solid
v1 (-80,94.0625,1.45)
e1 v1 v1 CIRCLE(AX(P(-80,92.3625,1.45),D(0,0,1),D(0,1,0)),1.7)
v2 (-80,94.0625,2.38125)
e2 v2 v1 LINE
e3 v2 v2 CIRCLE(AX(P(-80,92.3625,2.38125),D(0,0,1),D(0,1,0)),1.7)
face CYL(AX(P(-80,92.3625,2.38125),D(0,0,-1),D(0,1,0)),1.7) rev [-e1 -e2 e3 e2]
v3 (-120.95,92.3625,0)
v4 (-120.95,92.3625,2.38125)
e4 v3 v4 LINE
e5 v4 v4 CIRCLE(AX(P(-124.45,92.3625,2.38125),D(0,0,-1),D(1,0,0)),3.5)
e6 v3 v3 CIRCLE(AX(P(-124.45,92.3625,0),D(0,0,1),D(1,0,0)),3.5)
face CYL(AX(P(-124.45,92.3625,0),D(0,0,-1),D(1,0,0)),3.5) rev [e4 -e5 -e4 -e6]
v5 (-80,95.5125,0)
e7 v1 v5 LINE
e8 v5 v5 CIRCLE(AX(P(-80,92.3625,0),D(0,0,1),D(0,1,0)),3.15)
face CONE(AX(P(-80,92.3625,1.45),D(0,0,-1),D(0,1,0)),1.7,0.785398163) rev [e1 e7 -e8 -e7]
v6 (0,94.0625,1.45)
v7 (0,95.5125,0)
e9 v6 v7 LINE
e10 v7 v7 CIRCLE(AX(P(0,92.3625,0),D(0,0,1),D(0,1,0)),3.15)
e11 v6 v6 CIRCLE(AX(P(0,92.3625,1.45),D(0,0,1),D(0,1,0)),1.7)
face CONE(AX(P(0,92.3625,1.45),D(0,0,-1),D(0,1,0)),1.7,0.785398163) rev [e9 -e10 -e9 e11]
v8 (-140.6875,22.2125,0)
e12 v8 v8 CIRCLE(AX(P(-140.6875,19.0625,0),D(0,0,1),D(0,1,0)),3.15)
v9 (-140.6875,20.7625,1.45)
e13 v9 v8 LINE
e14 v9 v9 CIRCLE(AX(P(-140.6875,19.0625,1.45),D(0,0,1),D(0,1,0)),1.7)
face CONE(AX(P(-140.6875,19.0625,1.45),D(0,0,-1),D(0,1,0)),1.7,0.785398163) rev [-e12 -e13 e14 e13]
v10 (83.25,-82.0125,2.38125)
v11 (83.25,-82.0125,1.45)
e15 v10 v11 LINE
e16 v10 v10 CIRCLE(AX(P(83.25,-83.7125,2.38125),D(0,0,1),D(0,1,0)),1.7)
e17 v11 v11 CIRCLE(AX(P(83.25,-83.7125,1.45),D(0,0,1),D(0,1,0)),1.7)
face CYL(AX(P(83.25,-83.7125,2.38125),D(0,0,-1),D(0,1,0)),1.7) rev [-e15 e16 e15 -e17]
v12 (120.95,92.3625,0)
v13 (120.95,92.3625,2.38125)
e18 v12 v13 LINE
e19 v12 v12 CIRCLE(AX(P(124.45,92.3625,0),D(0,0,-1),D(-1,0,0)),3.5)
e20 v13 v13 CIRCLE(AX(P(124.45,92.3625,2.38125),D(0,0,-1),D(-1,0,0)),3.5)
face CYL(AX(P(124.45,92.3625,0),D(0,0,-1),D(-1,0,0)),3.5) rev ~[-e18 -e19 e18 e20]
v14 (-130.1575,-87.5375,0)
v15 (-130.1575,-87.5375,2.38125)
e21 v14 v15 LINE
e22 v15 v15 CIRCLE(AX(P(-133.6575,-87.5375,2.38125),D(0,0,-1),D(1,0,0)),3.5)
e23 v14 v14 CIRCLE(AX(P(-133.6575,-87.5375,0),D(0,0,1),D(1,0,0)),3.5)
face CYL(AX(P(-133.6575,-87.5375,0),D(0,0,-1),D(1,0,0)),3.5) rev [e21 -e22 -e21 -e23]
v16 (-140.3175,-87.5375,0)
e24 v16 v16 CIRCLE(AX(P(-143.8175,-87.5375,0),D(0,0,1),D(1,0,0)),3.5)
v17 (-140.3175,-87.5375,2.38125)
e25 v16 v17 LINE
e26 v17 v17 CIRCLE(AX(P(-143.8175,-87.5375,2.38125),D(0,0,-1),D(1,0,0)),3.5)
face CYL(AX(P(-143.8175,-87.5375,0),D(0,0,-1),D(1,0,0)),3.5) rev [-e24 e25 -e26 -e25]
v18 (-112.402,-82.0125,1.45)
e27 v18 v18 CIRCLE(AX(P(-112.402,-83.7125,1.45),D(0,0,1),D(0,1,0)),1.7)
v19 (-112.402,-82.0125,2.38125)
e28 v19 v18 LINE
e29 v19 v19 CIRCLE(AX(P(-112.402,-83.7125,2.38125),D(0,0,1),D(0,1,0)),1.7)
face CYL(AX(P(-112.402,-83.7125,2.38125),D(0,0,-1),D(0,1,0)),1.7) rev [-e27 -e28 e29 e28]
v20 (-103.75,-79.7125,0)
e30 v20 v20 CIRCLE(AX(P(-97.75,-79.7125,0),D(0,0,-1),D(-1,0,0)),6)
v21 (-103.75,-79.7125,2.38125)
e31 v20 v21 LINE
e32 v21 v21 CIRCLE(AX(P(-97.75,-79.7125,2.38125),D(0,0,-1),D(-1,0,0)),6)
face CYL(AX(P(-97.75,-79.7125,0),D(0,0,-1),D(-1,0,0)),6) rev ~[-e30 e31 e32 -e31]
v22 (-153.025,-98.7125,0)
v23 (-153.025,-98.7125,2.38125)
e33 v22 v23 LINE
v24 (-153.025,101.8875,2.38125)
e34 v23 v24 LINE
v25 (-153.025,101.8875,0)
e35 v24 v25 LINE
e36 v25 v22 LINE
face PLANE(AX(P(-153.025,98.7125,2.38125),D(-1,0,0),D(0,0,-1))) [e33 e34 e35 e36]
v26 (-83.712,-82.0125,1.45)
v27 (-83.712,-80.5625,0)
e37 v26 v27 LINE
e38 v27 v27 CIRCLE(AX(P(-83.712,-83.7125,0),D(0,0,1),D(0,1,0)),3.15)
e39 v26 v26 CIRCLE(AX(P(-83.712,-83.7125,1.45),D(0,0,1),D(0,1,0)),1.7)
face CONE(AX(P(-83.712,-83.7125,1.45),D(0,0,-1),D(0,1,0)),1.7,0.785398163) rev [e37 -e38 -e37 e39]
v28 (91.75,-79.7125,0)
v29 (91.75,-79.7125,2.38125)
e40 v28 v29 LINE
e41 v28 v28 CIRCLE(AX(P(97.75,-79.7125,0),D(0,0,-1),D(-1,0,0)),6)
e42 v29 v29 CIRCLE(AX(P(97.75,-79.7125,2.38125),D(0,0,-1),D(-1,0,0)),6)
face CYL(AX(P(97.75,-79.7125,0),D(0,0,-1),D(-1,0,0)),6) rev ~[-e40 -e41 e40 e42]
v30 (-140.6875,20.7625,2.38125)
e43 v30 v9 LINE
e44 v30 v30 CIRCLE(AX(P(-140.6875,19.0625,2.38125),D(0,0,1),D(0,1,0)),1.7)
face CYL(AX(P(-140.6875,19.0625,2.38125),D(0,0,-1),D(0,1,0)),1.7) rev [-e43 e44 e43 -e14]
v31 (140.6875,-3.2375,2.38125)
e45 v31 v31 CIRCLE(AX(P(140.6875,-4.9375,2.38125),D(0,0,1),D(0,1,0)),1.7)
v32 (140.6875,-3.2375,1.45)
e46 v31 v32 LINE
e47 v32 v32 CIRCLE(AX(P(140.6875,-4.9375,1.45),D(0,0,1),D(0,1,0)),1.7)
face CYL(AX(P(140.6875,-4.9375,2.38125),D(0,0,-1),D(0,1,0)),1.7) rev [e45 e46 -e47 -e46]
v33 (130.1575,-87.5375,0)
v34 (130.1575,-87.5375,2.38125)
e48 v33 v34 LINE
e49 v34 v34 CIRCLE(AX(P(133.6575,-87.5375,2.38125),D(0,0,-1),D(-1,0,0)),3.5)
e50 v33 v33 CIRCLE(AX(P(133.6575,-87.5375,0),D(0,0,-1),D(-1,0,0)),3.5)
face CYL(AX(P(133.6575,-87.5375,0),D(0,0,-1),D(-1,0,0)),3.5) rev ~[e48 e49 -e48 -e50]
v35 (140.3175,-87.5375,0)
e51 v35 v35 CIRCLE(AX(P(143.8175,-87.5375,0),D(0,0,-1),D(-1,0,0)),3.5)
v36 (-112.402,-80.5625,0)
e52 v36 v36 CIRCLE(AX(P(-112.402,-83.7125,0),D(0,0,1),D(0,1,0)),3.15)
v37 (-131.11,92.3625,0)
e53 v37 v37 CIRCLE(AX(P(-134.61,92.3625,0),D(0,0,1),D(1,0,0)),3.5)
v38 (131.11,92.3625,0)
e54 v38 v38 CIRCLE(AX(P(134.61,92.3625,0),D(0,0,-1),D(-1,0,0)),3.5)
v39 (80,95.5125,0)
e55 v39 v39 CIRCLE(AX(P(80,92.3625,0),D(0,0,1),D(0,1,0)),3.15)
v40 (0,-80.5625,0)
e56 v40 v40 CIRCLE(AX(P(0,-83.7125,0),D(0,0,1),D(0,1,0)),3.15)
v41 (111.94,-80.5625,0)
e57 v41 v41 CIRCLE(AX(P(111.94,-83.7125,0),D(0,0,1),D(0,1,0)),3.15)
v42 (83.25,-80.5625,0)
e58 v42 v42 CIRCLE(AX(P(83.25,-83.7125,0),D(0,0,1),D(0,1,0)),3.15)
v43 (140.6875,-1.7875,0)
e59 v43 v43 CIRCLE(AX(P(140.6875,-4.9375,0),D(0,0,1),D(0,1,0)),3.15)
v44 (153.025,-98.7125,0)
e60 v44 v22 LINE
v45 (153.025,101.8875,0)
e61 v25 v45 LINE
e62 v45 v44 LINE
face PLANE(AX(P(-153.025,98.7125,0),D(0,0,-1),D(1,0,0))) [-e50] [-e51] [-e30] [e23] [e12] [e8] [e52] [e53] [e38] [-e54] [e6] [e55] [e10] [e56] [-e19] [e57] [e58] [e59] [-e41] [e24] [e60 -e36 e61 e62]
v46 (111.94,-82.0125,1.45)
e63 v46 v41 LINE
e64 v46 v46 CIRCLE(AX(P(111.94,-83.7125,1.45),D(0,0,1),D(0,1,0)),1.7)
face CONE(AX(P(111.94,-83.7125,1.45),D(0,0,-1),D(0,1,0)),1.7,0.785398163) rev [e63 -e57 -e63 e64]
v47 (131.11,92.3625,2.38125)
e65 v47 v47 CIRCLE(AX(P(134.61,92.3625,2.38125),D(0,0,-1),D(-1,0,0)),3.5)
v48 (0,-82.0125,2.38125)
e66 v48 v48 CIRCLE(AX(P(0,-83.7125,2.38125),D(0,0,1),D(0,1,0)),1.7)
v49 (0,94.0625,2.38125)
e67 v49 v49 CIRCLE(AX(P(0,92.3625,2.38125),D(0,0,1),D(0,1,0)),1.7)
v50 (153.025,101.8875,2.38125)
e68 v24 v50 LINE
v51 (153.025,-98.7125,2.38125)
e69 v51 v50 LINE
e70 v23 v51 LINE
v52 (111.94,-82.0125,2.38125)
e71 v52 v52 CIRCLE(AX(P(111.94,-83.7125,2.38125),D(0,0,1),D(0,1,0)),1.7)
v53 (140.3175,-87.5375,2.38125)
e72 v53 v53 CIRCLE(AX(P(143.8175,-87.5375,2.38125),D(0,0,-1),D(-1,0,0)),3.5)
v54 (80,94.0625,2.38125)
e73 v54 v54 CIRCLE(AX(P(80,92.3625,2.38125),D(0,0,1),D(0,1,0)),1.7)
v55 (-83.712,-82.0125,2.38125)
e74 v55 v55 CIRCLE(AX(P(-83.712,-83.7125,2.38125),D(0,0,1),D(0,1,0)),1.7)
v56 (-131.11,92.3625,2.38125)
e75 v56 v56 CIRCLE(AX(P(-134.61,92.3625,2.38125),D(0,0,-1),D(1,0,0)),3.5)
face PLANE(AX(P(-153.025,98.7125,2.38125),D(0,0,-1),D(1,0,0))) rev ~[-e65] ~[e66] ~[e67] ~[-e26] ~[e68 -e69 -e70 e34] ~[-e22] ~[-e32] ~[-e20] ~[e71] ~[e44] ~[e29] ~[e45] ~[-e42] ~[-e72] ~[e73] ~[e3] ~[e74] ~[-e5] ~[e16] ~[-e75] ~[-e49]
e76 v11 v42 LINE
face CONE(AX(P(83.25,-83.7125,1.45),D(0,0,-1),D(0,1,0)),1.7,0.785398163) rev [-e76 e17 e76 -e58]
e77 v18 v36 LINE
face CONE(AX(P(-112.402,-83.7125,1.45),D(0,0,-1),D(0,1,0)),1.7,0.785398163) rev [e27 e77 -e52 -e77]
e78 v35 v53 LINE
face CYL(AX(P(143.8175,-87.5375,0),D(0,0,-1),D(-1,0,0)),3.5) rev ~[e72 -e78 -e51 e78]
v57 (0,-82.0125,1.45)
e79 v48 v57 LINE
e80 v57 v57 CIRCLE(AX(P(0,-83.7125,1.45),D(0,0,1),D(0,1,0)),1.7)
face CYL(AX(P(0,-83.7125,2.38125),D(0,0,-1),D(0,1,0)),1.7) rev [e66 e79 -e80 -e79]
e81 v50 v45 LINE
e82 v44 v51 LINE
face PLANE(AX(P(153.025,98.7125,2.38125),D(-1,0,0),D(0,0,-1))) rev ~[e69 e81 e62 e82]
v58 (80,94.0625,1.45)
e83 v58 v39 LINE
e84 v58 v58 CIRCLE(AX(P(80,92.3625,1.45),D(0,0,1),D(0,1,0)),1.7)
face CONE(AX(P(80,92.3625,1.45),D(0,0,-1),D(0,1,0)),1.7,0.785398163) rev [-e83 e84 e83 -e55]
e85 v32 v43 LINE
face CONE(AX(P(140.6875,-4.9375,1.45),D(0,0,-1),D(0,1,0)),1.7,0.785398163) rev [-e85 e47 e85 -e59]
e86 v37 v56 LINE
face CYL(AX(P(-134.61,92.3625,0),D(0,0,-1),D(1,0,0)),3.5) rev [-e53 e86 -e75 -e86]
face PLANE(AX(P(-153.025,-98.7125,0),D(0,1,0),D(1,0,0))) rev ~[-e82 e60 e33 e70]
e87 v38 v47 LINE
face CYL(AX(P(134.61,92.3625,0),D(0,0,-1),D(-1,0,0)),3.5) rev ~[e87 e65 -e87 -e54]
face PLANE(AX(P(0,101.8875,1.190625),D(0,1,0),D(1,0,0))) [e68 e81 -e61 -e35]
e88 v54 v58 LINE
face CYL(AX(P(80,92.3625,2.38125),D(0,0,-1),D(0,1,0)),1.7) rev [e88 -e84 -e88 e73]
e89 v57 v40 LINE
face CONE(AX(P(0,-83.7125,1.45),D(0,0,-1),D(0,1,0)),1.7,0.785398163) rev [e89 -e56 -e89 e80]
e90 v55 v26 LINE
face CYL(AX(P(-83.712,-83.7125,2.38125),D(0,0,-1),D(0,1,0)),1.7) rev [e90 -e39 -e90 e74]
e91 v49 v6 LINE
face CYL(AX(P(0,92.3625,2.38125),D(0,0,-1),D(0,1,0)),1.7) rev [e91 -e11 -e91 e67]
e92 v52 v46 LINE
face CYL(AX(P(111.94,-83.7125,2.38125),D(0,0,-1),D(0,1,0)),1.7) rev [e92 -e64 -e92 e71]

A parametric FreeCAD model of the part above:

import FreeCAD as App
import Part
import Sketcher

V = App.Vector
Q = App.Units.Quantity

doc = App.newDocument("Part")
body = doc.addObject("PartDesign::Body", "Body")

sketch1 = doc.addObject("Sketcher::SketchObject", "Sketch")
body.addObject(sketch1)
sketch1.AttachmentSupport = (doc.XY_Plane, [""])
sketch1.MapMode = "FlatFace"
sketch1.addGeometry([
    Part.LineSegment(V(-153, -99, 0), V(153, -99, 0)),
    Part.LineSegment(V(153, -99, 0), V(153, 99, 0)),
    Part.LineSegment(V(153, 99, 0), V(-153, 99, 0)),
    Part.LineSegment(V(-153, 99, 0), V(-153, -99, 0)),
], False)
sketch1.addConstraint([
    Sketcher.Constraint("Coincident", 0, 2, 1, 1),
    Sketcher.Constraint("Coincident", 1, 2, 2, 1),
    Sketcher.Constraint("Coincident", 2, 2, 3, 1),
    Sketcher.Constraint("Coincident", 3, 2, 0, 1),
    Sketcher.Constraint("Horizontal", 0),
    Sketcher.Constraint("Vertical", 1),
    Sketcher.Constraint("Horizontal", 2),
    Sketcher.Constraint("Vertical", 3),
    Sketcher.Constraint("Symmetric", 0, 2, 2, 2, -1, 1),
    Sketcher.Constraint("DistanceX", 0, 1, 0, 2, 306.05),
    Sketcher.Constraint("DistanceY", 1, 1, 1, 2, 197.425),
])
pad1 = doc.addObject("PartDesign::Pad", "Pad")
body.addObject(pad1)
pad1.Profile = sketch1
pad1.Length = 2.38125

sketch2 = doc.addObject("Sketcher::SketchObject", "Sketch001")
body.addObject(sketch2)
sketch2.AttachmentSupport = (doc.XZ_Plane, [""])
sketch2.MapMode = "FlatFace"
sketch2.AttachmentOffset = App.Placement(V(0, 0, -98.7125), App.Rotation())
sketch2.addGeometry([
    Part.LineSegment(V(-153, 0, 0), V(-153, 2.4, 0)),
    Part.LineSegment(V(-153, 2.4, 0), V(153, 2.4, 0)),
    Part.LineSegment(V(153, 2.4, 0), V(153, 0, 0)),
    Part.LineSegment(V(153, 0, 0), V(-153, 0, 0)),
], False)
sketch2.addConstraint([
    Sketcher.Constraint("Coincident", 0, 2, 1, 1),
    Sketcher.Constraint("Coincident", 1, 2, 2, 1),
    Sketcher.Constraint("Coincident", 2, 2, 3, 1),
    Sketcher.Constraint("Coincident", 3, 2, 0, 1),
    Sketcher.Constraint("Vertical", 0),
    Sketcher.Constraint("Horizontal", 1),
    Sketcher.Constraint("Vertical", 2),
    Sketcher.Constraint("Horizontal", 3),
    Sketcher.Constraint("Symmetric", 2, 2, 3, 2, -1, 1),
    Sketcher.Constraint("DistanceX", 1, 1, 1, 2, 306.05),
    Sketcher.Constraint("DistanceY", 0, 1, 0, 2, 2.38125),
])
pad2 = doc.addObject("PartDesign::Pad", "Pad001")
body.addObject(pad2)
pad2.Profile = sketch2
pad2.Length = 3.175
pad2.Reversed = True

sketch3 = doc.addObject("Sketcher::SketchObject", "Sketch002")
body.addObject(sketch3)
sketch3.AttachmentSupport = (doc.XY_Plane, [""])
sketch3.MapMode = "FlatFace"
sketch3.addGeometry([
    Part.Circle(V(134.6, 92.4, 0), V(0, 0, 1), 3.5),
    Part.Circle(V(124.5, 92.4, 0), V(0, 0, 1), 3.5),
    Part.Circle(V(143.8, -87.5, 0), V(0, 0, 1), 3.5),
    Part.Circle(V(133.7, -87.5, 0), V(0, 0, 1), 3.5),
], False)
sketch3.addConstraint([
    Sketcher.Constraint("Equal", 0, 1),
    Sketcher.Constraint("Equal", 1, 2),
    Sketcher.Constraint("Equal", 2, 3),
    Sketcher.Constraint("Horizontal", 0, 3, 1, 3),
    Sketcher.Constraint("Horizontal", 2, 3, 3, 3),
    Sketcher.Constraint("Diameter", 0, 7.0),
    Sketcher.Constraint("DistanceY", 2, 3, 0, 3, 179.9),
    Sketcher.Constraint("DistanceX", -1, 1, 0, 3, 134.61),
    Sketcher.Constraint("DistanceX", -1, 1, 1, 3, 124.45),
    Sketcher.Constraint("DistanceX", 3, 3, 2, 3, 10.16),
    Sketcher.Constraint("DistanceY", -1, 1, 0, 3, 92.3625),
    Sketcher.Constraint("DistanceX", -1, 1, 2, 3, 143.8175),
])
pocket1 = doc.addObject("PartDesign::Pocket", "Pocket")
body.addObject(pocket1)
pocket1.Profile = sketch3
pocket1.Type = "ThroughAll"
pocket1.Reversed = True
doc.recompute()

mirrored = doc.addObject("PartDesign::Mirrored", "Mirrored")
body.addObject(mirrored)
mirrored.Originals = [pocket1]
mirrored.MirrorPlane = (doc.YZ_Plane, [""])
body.Tip = mirrored

sketch4 = doc.addObject("Sketcher::SketchObject", "Sketch003")
body.addObject(sketch4)
sketch4.AttachmentSupport = (doc.YZ_Plane, [""])
sketch4.MapMode = "FlatFace"
sketch4.AttachmentOffset = App.Placement(V(0, 0, 111.94), App.Rotation())
sketch4.addGeometry([
    Part.LineSegment(V(-83.7, 2.4, 0), V(-83.7, 0, 0)),
    Part.LineSegment(V(-83.7, 0, 0), V(-80.6, 0, 0)),
    Part.LineSegment(V(-80.6, 0, 0), V(-82, 1.4, 0)),
    Part.LineSegment(V(-82, 1.4, 0), V(-82, 2.4, 0)),
    Part.LineSegment(V(-82, 2.4, 0), V(-83.7, 2.4, 0)),
], False)
sketch4.addGeometry(Part.LineSegment(V(-83.7, 0, 0), V(-83.7, 2.4, 0)), True)
sketch4.addConstraint([
    Sketcher.Constraint("Coincident", 0, 2, 1, 1),
    Sketcher.Constraint("Coincident", 1, 2, 2, 1),
    Sketcher.Constraint("Coincident", 2, 2, 3, 1),
    Sketcher.Constraint("Coincident", 3, 2, 4, 1),
    Sketcher.Constraint("Coincident", 4, 2, 0, 1),
    Sketcher.Constraint("Vertical", 0),
    Sketcher.Constraint("Horizontal", 1),
    Sketcher.Constraint("Vertical", 3),
    Sketcher.Constraint("Horizontal", 4),
    Sketcher.Constraint("Vertical", 5),
    Sketcher.Constraint("Coincident", 5, 1, 0, 2),
    Sketcher.Constraint("PointOnObject", 0, 2, -1),
    Sketcher.Constraint("Horizontal", 3, 2, 5, 2),
    Sketcher.Constraint("Angle", 2, Q("135 deg")),
    Sketcher.Constraint("DistanceX", 4, 2, 4, 1, 1.7),
    Sketcher.Constraint("DistanceX", 1, 1, 1, 2, 3.15),
    Sketcher.Constraint("DistanceY", 0, 2, 0, 1, 2.38125),
    Sketcher.Constraint("DistanceX", 0, 2, -1, 1, 83.7125),
])
groove = doc.addObject("PartDesign::Groove", "Groove")
body.addObject(groove)
groove.Profile = sketch4
groove.ReferenceAxis = (sketch4, ["Axis0"])
groove.Angle = 360
doc.recompute()

linearpattern = doc.addObject("PartDesign::LinearPattern", "LinearPattern")
body.addObject(linearpattern)
linearpattern.Originals = [groove]
linearpattern.Direction = (doc.X_Axis, [""])
linearpattern.Mode = "offset"
linearpattern.Offset = 28.69
linearpattern.Occurrences = 2
linearpattern.Reversed = True
body.Tip = linearpattern
doc.recompute()

datumline = doc.addObject("PartDesign::Line", "DatumLine")
body.addObject(datumline)
datumline.Placement = App.Placement(V(0, 0, 0), App.Rotation(V(0, 0, 1), V(0.342817625, 0.939401978, 0)))
linearpattern2 = doc.addObject("PartDesign::LinearPattern", "LinearPattern001")
body.addObject(linearpattern2)
linearpattern2.Originals = [groove]
linearpattern2.Direction = (datumline, [""])
linearpattern2.Mode = "offset"
linearpattern2.Offset = 83.85654
linearpattern2.Occurrences = 2
body.Tip = linearpattern2
doc.recompute()

datumline2 = doc.addObject("PartDesign::Line", "DatumLine001")
body.addObject(datumline2)
datumline2.Placement = App.Placement(V(0, 0, 0), App.Rotation(V(0, 0, 1), V(-0.178487097, 0.983942253, 0)))
linearpattern3 = doc.addObject("PartDesign::LinearPattern", "LinearPattern002")
body.addObject(linearpattern3)
linearpattern3.Originals = [groove]
linearpattern3.Direction = (datumline2, [""])
linearpattern3.Mode = "offset"
linearpattern3.Offset = 178.94851
linearpattern3.Occurrences = 2
body.Tip = linearpattern3
doc.recompute()

datumline3 = doc.addObject("PartDesign::Line", "DatumLine002")
body.addObject(datumline3)
datumline3.Placement = App.Placement(V(0, 0, 0), App.Rotation(V(0, 0, 1), V(-0.536507945, 0.843895269, 0)))
linearpattern4 = doc.addObject("PartDesign::LinearPattern", "LinearPattern003")
body.addObject(linearpattern4)
linearpattern4.Originals = [groove]
linearpattern4.Direction = (datumline3, [""])
linearpattern4.Mode = "offset"
linearpattern4.Offset = 208.645559
linearpattern4.Occurrences = 2
body.Tip = linearpattern4
doc.recompute()

datumline4 = doc.addObject("PartDesign::Line", "DatumLine003")
body.addObject(datumline4)
datumline4.Placement = App.Placement(V(0, 0, 0), App.Rotation(V(0, 0, 1), V(-0.736905481, 0.675995793, 0)))
linearpattern5 = doc.addObject("PartDesign::LinearPattern", "LinearPattern004")
body.addObject(linearpattern5)
linearpattern5.Originals = [groove]
linearpattern5.Direction = (datumline4, [""])
linearpattern5.Mode = "offset"
linearpattern5.Offset = 260.467597
linearpattern5.Occurrences = 2
body.Tip = linearpattern5
doc.recompute()

datumline5 = doc.addObject("PartDesign::Line", "DatumLine004")
body.addObject(datumline5)
datumline5.Placement = App.Placement(V(0, 0, 0), App.Rotation(V(0, 0, 1), V(-0.926280976, 0.376833588, 0)))
linearpattern6 = doc.addObject("PartDesign::LinearPattern", "LinearPattern005")
body.addObject(linearpattern6)
linearpattern6.Originals = [groove]
linearpattern6.Direction = (datumline5, [""])
linearpattern6.Mode = "offset"
linearpattern6.Offset = 272.733119
linearpattern6.Occurrences = 2
body.Tip = linearpattern6
doc.recompute()

linearpattern7 = doc.addObject("PartDesign::LinearPattern", "LinearPattern006")
body.addObject(linearpattern7)
linearpattern7.Originals = [groove]
linearpattern7.Direction = (doc.X_Axis, [""])
linearpattern7.Mode = "offset"
linearpattern7.Offset = 224.342
linearpattern7.Occurrences = 2
linearpattern7.Reversed = True
body.Tip = linearpattern7
doc.recompute()

linearpattern8 = doc.addObject("PartDesign::LinearPattern", "LinearPattern007")
body.addObject(linearpattern8)
linearpattern8.Originals = [groove]
linearpattern8.Direction = (doc.X_Axis, [""])
linearpattern8.Mode = "offset"
linearpattern8.Offset = 195.652
linearpattern8.Occurrences = 2
linearpattern8.Reversed = True
body.Tip = linearpattern8
doc.recompute()

linearpattern9 = doc.addObject("PartDesign::LinearPattern", "LinearPattern008")
body.addObject(linearpattern9)
linearpattern9.Originals = [groove]
linearpattern9.Direction = (doc.X_Axis, [""])
linearpattern9.Mode = "offset"
linearpattern9.Offset = 111.94
linearpattern9.Occurrences = 2
linearpattern9.Reversed = True
body.Tip = linearpattern9

sketch5 = doc.addObject("Sketcher::SketchObject", "Sketch004")
body.addObject(sketch5)
sketch5.AttachmentSupport = (doc.XY_Plane, [""])
sketch5.MapMode = "FlatFace"
sketch5.addGeometry([
    Part.Circle(V(98, -80, 0), V(0, 0, 1), 6),
    Part.Circle(V(-98, -80, 0), V(0, 0, 1), 6),
], False)
sketch5.addConstraint([
    Sketcher.Constraint("Equal", 0, 1),
    Sketcher.Constraint("Symmetric", 0, 3, 1, 3, -2),
    Sketcher.Constraint("Diameter", 0, 12.0),
    Sketcher.Constraint("DistanceX", 1, 3, 0, 3, 195.5),
    Sketcher.Constraint("DistanceY", 0, 3, -1, 1, 79.7125),
])
pocket2 = doc.addObject("PartDesign::Pocket", "Pocket001")
body.addObject(pocket2)
pocket2.Profile = sketch5
pocket2.Type = "ThroughAll"
pocket2.Reversed = True

doc.recompute()
